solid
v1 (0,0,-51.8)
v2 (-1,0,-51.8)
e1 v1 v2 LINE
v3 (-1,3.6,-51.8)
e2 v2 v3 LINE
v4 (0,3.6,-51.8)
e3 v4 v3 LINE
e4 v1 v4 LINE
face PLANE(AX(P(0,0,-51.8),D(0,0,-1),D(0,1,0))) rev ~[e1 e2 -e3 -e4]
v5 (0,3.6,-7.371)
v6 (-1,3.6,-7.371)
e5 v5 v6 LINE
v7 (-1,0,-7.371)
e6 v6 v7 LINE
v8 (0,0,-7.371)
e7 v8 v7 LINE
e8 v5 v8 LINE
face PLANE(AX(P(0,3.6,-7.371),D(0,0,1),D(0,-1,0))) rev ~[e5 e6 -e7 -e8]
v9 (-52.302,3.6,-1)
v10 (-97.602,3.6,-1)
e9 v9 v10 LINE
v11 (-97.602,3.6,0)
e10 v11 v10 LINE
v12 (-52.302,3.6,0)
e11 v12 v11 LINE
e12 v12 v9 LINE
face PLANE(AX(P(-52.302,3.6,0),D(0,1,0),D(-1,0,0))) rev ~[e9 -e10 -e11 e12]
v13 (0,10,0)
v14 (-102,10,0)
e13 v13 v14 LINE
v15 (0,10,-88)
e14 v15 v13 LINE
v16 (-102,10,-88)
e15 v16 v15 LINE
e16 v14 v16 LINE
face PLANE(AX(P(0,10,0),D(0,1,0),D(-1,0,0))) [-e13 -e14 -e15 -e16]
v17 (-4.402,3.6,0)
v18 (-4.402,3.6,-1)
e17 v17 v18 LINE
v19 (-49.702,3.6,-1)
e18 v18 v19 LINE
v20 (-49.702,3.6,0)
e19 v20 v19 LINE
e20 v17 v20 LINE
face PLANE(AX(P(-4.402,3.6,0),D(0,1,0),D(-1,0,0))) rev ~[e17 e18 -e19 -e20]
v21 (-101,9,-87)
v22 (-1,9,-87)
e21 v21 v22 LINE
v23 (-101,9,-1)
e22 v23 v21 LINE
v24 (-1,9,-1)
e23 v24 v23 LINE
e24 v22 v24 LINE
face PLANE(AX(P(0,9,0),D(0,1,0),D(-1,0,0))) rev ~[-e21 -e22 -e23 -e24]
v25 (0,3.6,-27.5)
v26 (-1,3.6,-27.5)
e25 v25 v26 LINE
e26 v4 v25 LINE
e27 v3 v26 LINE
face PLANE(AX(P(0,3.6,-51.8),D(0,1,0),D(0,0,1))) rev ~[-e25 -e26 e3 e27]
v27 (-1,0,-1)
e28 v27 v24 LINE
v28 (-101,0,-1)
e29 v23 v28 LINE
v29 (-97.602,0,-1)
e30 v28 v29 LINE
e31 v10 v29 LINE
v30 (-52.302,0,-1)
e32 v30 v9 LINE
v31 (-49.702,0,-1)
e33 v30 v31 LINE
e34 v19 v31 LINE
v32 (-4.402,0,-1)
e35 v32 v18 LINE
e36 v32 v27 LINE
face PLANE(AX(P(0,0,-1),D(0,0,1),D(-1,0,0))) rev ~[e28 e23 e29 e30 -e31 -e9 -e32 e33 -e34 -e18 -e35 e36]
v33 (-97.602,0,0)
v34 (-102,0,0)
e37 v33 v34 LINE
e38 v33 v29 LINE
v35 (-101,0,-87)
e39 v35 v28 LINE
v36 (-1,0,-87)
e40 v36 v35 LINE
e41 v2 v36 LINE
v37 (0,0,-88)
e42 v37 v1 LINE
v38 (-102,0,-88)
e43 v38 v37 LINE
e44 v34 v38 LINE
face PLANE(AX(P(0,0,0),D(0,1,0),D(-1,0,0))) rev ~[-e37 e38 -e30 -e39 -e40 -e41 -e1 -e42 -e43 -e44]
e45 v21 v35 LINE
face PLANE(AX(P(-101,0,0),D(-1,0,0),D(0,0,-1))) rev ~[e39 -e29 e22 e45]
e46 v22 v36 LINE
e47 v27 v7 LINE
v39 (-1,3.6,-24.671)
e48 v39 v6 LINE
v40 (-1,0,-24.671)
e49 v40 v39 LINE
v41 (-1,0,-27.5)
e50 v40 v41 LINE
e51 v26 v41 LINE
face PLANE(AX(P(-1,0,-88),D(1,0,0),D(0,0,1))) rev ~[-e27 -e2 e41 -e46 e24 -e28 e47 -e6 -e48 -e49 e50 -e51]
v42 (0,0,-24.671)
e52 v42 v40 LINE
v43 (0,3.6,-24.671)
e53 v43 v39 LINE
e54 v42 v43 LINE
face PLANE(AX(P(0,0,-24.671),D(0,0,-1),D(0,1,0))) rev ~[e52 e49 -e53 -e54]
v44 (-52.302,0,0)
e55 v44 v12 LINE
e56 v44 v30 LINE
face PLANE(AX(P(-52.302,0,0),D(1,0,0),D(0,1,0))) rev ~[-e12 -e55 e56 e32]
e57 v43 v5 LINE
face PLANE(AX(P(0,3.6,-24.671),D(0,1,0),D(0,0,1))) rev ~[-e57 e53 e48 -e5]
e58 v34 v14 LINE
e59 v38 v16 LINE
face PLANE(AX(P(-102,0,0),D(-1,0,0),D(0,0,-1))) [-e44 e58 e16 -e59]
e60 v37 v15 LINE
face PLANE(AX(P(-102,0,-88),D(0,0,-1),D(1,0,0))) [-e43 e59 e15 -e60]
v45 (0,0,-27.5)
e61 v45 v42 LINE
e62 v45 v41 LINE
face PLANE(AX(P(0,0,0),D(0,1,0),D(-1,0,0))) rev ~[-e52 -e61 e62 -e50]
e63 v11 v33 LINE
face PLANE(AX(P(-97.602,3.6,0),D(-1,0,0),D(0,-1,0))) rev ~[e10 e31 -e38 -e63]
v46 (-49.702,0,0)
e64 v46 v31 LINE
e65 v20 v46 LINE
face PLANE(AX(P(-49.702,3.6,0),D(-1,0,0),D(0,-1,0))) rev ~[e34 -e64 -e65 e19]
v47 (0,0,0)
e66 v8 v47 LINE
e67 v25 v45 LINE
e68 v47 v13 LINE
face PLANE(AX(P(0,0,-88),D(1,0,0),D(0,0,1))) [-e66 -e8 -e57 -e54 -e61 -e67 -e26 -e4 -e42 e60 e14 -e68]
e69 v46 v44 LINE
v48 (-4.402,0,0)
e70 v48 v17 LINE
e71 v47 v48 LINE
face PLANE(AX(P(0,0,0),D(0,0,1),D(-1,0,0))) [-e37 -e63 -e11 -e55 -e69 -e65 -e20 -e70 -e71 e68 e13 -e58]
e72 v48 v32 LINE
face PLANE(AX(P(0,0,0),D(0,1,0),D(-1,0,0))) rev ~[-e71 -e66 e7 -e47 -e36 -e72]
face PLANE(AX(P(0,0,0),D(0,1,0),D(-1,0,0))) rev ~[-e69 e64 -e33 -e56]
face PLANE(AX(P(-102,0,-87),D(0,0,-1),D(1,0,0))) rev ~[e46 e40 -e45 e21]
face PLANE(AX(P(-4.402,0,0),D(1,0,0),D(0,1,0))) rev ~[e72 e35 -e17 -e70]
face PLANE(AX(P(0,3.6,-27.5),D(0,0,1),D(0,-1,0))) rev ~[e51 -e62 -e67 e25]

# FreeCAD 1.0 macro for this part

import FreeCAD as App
import Part
import Sketcher


def faces_at(feature, points):
    """Names of the faces that lie closest to the given points."""
    faces = feature.Shape.Faces
    near = lambda p: min(range(len(faces)), key=lambda i: faces[i].distToShape(Part.Vertex(*p))[0])
    return sorted({f"Face{near(p) + 1}" for p in points})

doc = App.newDocument("Part")
body = doc.addObject("PartDesign::Body", "Body")

# Sketch on XZ plane
sketch1 = body.newObject("Sketcher::SketchObject", "Sketch")
sketch1.AttachmentSupport = (doc.getObject("XZ_Plane"), [""])
sketch1.MapMode = "FlatFace"
sketch1.addGeometry(Part.LineSegment(App.Vector(-102, 0, 0), App.Vector(0, 0, 0)), False)
sketch1.addGeometry(Part.LineSegment(App.Vector(0, 0, 0), App.Vector(0, -88, 0)), False)
sketch1.addGeometry(Part.LineSegment(App.Vector(0, -88, 0), App.Vector(-102, -88, 0)), False)
sketch1.addGeometry(Part.LineSegment(App.Vector(-102, -88, 0), App.Vector(-102, 0, 0)), False)
sketch1.addConstraint(Sketcher.Constraint("Coincident", 0, 2, 1, 1))
sketch1.addConstraint(Sketcher.Constraint("Coincident", 1, 2, 2, 1))
sketch1.addConstraint(Sketcher.Constraint("Coincident", 2, 2, 3, 1))
sketch1.addConstraint(Sketcher.Constraint("Coincident", 3, 2, 0, 1))
sketch1.addConstraint(Sketcher.Constraint("Horizontal", 0))
sketch1.addConstraint(Sketcher.Constraint("Vertical", 1))
sketch1.addConstraint(Sketcher.Constraint("Horizontal", 2))
sketch1.addConstraint(Sketcher.Constraint("Vertical", 3))
sketch1.addConstraint(Sketcher.Constraint("Coincident", 0, 2, -1, 1))
sketch1.addConstraint(Sketcher.Constraint("DistanceX", 0, 1, 0, 2, 102.0))
sketch1.addConstraint(Sketcher.Constraint("DistanceY", 1, 2, 1, 1, 88.0))
pad1 = body.newObject("PartDesign::Pad", "Pad")
pad1.Profile = sketch1
pad1.Length = 10
pad1.Reversed = True
doc.recompute()

thickness = body.newObject("PartDesign::Thickness", "Thickness")
thickness.Base = (pad1, faces_at(pad1, [(-68, 0, -29.333)]))
thickness.Value = 1
thickness.Reversed = True
thickness.Join = "Intersection"

# Sketch on XY plane
sketch2 = body.newObject("Sketcher::SketchObject", "Sketch001")
sketch2.AttachmentSupport = (doc.getObject("XY_Plane"), [""])
sketch2.MapMode = "FlatFace"
sketch2.addGeometry(Part.LineSegment(App.Vector(-97.6, 3.6, 0), App.Vector(-97.6, 0, 0)), False)
sketch2.addGeometry(Part.LineSegment(App.Vector(-97.6, 0, 0), App.Vector(-52.3, 0, 0)), False)
sketch2.addGeometry(Part.LineSegment(App.Vector(-52.3, 0, 0), App.Vector(-52.3, 3.6, 0)), False)
sketch2.addGeometry(Part.LineSegment(App.Vector(-52.3, 3.6, 0), App.Vector(-97.6, 3.6, 0)), False)
sketch2.addGeometry(Part.LineSegment(App.Vector(-49.7, 3.6, 0), App.Vector(-49.7, 0, 0)), False)
sketch2.addGeometry(Part.LineSegment(App.Vector(-49.7, 0, 0), App.Vector(-4.4, 0, 0)), False)
sketch2.addGeometry(Part.LineSegment(App.Vector(-4.4, 0, 0), App.Vector(-4.4, 3.6, 0)), False)
sketch2.addGeometry(Part.LineSegment(App.Vector(-4.4, 3.6, 0), App.Vector(-49.7, 3.6, 0)), False)
sketch2.addConstraint(Sketcher.Constraint("Coincident", 0, 2, 1, 1))
sketch2.addConstraint(Sketcher.Constraint("Coincident", 1, 2, 2, 1))
sketch2.addConstraint(Sketcher.Constraint("Coincident", 2, 2, 3, 1))
sketch2.addConstraint(Sketcher.Constraint("Coincident", 3, 2, 0, 1))
sketch2.addConstraint(Sketcher.Constraint("Coincident", 4, 2, 5, 1))
sketch2.addConstraint(Sketcher.Constraint("Coincident", 5, 2, 6, 1))
sketch2.addConstraint(Sketcher.Constraint("Coincident", 6, 2, 7, 1))
sketch2.addConstraint(Sketcher.Constraint("Coincident", 7, 2, 4, 1))
sketch2.addConstraint(Sketcher.Constraint("Vertical", 0))
sketch2.addConstraint(Sketcher.Constraint("Horizontal", 1))
sketch2.addConstraint(Sketcher.Constraint("Vertical", 2))
sketch2.addConstraint(Sketcher.Constraint("Horizontal", 3))
sketch2.addConstraint(Sketcher.Constraint("Vertical", 4))
sketch2.addConstraint(Sketcher.Constraint("Horizontal", 5))
sketch2.addConstraint(Sketcher.Constraint("Vertical", 6))
sketch2.addConstraint(Sketcher.Constraint("Horizontal", 7))
sketch2.addConstraint(Sketcher.Constraint("PointOnObject", 0, 2, -1))
sketch2.addConstraint(Sketcher.Constraint("PointOnObject", 4, 2, -1))
sketch2.addConstraint(Sketcher.Constraint("Horizontal", 3, 2, 6, 2))
sketch2.addConstraint(Sketcher.Constraint("Equal", 3, 5))
sketch2.addConstraint(Sketcher.Constraint("DistanceX", 1, 1, 1, 2, 45.3))
sketch2.addConstraint(Sketcher.Constraint("DistanceY", 0, 2, 0, 1, 3.6))
sketch2.addConstraint(Sketcher.Constraint("DistanceX", 1, 2, 4, 2, 2.6))
sketch2.addConstraint(Sketcher.Constraint("DistanceX", 0, 2, -1, 1, 97.602))
pocket1 = body.newObject("PartDesign::Pocket", "Pocket")
pocket1.Profile = sketch2
pocket1.Length = 1

# Sketch on YZ plane
sketch3 = body.newObject("Sketcher::SketchObject", "Sketch002")
sketch3.AttachmentSupport = (doc.getObject("YZ_Plane"), [""])
sketch3.MapMode = "FlatFace"
sketch3.addGeometry(Part.LineSegment(App.Vector(3.6, -7.4, 0), App.Vector(0, -7.4, 0)), False)
sketch3.addGeometry(Part.LineSegment(App.Vector(0, -7.4, 0), App.Vector(0, -24.7, 0)), False)
sketch3.addGeometry(Part.LineSegment(App.Vector(0, -24.7, 0), App.Vector(3.6, -24.7, 0)), False)
sketch3.addGeometry(Part.LineSegment(App.Vector(3.6, -24.7, 0), App.Vector(3.6, -7.4, 0)), False)
sketch3.addGeometry(Part.LineSegment(App.Vector(3.6, -27.5, 0), App.Vector(0, -27.5, 0)), False)
sketch3.addGeometry(Part.LineSegment(App.Vector(0, -27.5, 0), App.Vector(0, -51.8, 0)), False)
sketch3.addGeometry(Part.LineSegment(App.Vector(0, -51.8, 0), App.Vector(3.6, -51.8, 0)), False)
sketch3.addGeometry(Part.LineSegment(App.Vector(3.6, -51.8, 0), App.Vector(3.6, -27.5, 0)), False)
sketch3.addConstraint(Sketcher.Constraint("Coincident", 0, 2, 1, 1))
sketch3.addConstraint(Sketcher.Constraint("Coincident", 1, 2, 2, 1))
sketch3.addConstraint(Sketcher.Constraint("Coincident", 2, 2, 3, 1))
sketch3.addConstraint(Sketcher.Constraint("Coincident", 3, 2, 0, 1))
sketch3.addConstraint(Sketcher.Constraint("Coincident", 4, 2, 5, 1))
sketch3.addConstraint(Sketcher.Constraint("Coincident", 5, 2, 6, 1))
sketch3.addConstraint(Sketcher.Constraint("Coincident", 6, 2, 7, 1))
sketch3.addConstraint(Sketcher.Constraint("Coincident", 7, 2, 4, 1))
sketch3.addConstraint(Sketcher.Constraint("Horizontal", 0))
sketch3.addConstraint(Sketcher.Constraint("Vertical", 1))
sketch3.addConstraint(Sketcher.Constraint("Horizontal", 2))
sketch3.addConstraint(Sketcher.Constraint("Vertical", 3))
sketch3.addConstraint(Sketcher.Constraint("Horizontal", 4))
sketch3.addConstraint(Sketcher.Constraint("Vertical", 5))
sketch3.addConstraint(Sketcher.Constraint("Horizontal", 6))
sketch3.addConstraint(Sketcher.Constraint("Vertical", 7))
sketch3.addConstraint(Sketcher.Constraint("PointOnObject", 0, 2, -2))
sketch3.addConstraint(Sketcher.Constraint("PointOnObject", 4, 2, -2))
sketch3.addConstraint(Sketcher.Constraint("Vertical", 3, 2, 6, 2))
sketch3.addConstraint(Sketcher.Constraint("DistanceY", 1, 2, 1, 1, 17.3))
sketch3.addConstraint(Sketcher.Constraint("DistanceY", 5, 2, 5, 1, 24.3))
sketch3.addConstraint(Sketcher.Constraint("DistanceX", 0, 2, 0, 1, 3.6))
sketch3.addConstraint(Sketcher.Constraint("DistanceY", 4, 2, 1, 2, 2.829))
sketch3.addConstraint(Sketcher.Constraint("DistanceY", 4, 2, -1, 1, 27.5))
pocket2 = body.newObject("PartDesign::Pocket", "Pocket001")
pocket2.Profile = sketch3
pocket2.Length = 1

doc.recompute()
